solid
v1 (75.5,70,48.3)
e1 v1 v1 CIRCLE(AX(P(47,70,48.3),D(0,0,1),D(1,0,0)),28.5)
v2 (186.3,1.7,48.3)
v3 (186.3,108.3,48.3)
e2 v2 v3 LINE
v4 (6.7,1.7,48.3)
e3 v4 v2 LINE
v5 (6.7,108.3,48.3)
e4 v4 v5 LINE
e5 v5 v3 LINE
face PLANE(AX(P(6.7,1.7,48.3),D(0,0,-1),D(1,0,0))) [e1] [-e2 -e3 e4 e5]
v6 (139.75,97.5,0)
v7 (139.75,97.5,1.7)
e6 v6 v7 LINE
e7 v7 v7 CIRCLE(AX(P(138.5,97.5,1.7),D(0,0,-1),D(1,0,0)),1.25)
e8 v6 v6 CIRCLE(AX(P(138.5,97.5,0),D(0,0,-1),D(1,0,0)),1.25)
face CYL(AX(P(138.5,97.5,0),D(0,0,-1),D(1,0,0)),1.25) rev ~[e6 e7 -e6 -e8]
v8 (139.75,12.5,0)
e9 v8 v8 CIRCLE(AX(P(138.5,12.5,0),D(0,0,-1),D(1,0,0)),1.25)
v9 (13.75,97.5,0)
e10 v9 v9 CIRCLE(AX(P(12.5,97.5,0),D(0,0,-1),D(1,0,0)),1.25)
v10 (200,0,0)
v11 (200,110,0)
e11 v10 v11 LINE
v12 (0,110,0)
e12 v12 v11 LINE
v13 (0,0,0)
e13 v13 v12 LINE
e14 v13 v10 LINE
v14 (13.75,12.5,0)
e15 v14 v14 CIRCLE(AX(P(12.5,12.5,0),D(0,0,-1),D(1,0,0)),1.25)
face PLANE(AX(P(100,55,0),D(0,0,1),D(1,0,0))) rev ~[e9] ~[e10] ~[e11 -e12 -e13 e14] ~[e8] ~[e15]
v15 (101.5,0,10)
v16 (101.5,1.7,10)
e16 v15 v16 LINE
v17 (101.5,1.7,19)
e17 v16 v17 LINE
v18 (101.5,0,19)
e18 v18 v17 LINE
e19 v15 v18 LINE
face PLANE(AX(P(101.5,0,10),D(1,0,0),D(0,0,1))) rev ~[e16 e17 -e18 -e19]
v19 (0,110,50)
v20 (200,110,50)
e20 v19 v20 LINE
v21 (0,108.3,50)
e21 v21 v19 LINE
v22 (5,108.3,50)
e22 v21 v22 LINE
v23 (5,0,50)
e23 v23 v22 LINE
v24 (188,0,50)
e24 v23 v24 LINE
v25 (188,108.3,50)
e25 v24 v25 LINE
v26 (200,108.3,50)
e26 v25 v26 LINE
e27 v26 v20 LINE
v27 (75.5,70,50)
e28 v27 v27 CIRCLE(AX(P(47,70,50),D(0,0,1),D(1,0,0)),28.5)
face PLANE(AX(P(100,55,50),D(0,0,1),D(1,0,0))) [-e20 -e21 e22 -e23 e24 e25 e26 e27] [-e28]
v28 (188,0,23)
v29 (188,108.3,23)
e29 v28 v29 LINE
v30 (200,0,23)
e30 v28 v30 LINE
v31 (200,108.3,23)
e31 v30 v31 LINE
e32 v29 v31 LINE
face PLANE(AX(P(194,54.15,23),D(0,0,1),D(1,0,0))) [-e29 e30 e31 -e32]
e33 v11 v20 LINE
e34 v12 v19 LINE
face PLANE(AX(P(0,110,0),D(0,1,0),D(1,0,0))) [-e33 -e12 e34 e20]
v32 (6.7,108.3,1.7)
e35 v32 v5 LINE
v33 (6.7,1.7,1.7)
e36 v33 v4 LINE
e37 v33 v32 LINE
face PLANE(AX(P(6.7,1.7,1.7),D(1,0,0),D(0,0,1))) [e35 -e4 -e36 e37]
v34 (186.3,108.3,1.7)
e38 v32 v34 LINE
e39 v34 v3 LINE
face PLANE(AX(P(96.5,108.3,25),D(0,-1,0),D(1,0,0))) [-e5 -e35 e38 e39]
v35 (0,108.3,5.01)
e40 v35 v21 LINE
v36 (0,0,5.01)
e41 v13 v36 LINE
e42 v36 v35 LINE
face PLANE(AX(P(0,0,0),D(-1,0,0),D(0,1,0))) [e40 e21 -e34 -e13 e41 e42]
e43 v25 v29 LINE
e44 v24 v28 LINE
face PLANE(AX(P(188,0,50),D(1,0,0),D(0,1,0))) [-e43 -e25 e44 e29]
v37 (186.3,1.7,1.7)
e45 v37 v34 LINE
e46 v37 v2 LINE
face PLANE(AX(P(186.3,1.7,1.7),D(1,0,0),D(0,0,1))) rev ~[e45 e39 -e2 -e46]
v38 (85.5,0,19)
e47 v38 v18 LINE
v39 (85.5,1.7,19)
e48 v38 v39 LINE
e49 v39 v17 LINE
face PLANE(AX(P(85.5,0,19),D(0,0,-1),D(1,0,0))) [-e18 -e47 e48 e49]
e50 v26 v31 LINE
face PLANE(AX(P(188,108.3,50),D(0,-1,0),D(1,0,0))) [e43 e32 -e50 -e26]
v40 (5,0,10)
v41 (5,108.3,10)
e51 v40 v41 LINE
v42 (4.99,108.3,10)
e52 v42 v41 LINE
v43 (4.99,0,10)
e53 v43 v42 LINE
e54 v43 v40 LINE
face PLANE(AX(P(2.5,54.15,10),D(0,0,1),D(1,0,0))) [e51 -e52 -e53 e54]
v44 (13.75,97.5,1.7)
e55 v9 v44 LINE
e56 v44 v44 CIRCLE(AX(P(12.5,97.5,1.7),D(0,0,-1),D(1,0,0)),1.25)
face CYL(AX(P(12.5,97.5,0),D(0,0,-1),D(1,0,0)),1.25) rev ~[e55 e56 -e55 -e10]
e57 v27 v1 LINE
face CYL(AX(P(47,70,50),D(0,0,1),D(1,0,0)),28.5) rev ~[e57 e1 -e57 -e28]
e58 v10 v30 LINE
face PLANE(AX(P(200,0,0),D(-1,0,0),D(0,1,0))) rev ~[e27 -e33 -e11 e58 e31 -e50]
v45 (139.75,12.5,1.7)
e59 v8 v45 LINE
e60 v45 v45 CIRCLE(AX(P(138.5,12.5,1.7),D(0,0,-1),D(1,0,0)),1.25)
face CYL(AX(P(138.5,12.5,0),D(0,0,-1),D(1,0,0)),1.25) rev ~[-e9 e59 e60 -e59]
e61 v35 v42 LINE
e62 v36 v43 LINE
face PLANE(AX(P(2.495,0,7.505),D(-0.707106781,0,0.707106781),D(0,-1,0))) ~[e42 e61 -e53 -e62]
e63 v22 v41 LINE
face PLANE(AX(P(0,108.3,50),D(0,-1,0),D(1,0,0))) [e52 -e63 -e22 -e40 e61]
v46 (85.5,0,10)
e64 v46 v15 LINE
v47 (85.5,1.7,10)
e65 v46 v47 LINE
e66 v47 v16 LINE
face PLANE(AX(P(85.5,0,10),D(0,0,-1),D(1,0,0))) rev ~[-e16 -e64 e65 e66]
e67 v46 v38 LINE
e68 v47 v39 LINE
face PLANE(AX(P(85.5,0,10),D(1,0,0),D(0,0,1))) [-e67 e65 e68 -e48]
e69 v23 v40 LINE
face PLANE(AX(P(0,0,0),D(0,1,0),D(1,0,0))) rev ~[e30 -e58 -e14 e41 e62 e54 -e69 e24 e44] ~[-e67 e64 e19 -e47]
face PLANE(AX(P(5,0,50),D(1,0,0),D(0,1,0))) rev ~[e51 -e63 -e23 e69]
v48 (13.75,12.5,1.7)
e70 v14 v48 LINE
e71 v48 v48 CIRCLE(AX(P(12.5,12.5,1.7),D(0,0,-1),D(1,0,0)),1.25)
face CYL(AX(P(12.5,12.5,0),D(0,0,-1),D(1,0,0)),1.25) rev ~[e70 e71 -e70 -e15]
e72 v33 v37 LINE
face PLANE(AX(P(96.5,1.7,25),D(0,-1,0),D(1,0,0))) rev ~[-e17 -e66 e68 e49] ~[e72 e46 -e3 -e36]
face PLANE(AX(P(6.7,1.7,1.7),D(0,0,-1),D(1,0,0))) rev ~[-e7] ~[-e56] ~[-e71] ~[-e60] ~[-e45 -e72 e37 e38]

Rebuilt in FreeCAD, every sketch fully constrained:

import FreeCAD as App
import Part
import Sketcher
from FreeCAD import Vector


def edges_at(feature, points):
    """Names of the edges that pass closest to the given points."""
    edges = feature.Shape.Edges
    near = lambda p: min(range(len(edges)), key=lambda i: edges[i].distToShape(Part.Vertex(*p))[0])
    return sorted({f"Edge{near(p) + 1}" for p in points})


def add_polygon(sketch, points):
    """Adds a closed chain of lines whose ends are joined by coincident constraints."""
    first, n = sketch.GeometryCount, len(points)
    for a, b in zip(points, points[1:] + points[:1]):
        sketch.addGeometry(Part.LineSegment(App.Vector(*a, 0), App.Vector(*b, 0)), False)
    for i in range(n):
        sketch.addConstraint(Sketcher.Constraint("Coincident", first + i, 2, first + (i + 1) % n, 1))

doc = App.newDocument("Part")
body = doc.addObject("PartDesign::Body", "Body")

sketch1 = doc.addObject("Sketcher::SketchObject", "Sketch")
body.addObject(sketch1)
sketch1.AttachmentSupport = (doc.XY_Plane, [""])
sketch1.MapMode = "FlatFace"
add_polygon(sketch1, [(0, 110), (0, 0), (200, 0), (200, 110)])
sketch1.addConstraint(Sketcher.Constraint("Vertical", 0))
sketch1.addConstraint(Sketcher.Constraint("Horizontal", 1))
sketch1.addConstraint(Sketcher.Constraint("Vertical", 2))
sketch1.addConstraint(Sketcher.Constraint("Horizontal", 3))
sketch1.addConstraint(Sketcher.Constraint("Coincident", 0, 2, -1, 1))
sketch1.addConstraint(Sketcher.Constraint("DistanceX", 1, 1, 1, 2, 200.0))
sketch1.addConstraint(Sketcher.Constraint("DistanceY", 0, 2, 0, 1, 110.0))
pad1 = doc.addObject("PartDesign::Pad", "Pad")
body.addObject(pad1)
pad1.Profile = sketch1
pad1.Length = 50

sketch2 = doc.addObject("Sketcher::SketchObject", "Sketch001")
body.addObject(sketch2)
sketch2.AttachmentSupport = (doc.XZ_Plane, [""])
sketch2.MapMode = "FlatFace"
add_polygon(sketch2, [(86, 19), (86, 10), (102, 10), (102, 19)])
sketch2.addConstraint(Sketcher.Constraint("Vertical", 0))
sketch2.addConstraint(Sketcher.Constraint("Horizontal", 1))
sketch2.addConstraint(Sketcher.Constraint("Vertical", 2))
sketch2.addConstraint(Sketcher.Constraint("Horizontal", 3))
sketch2.addConstraint(Sketcher.Constraint("DistanceX", 1, 1, 1, 2, 16.0))
sketch2.addConstraint(Sketcher.Constraint("DistanceY", 0, 2, 0, 1, 9.0))
sketch2.addConstraint(Sketcher.Constraint("DistanceY", -1, 1, 0, 2, 10.0))
sketch2.addConstraint(Sketcher.Constraint("DistanceX", -1, 1, 0, 2, 85.5))
pocket1 = doc.addObject("PartDesign::Pocket", "Pocket")
body.addObject(pocket1)
pocket1.Profile = sketch2
pocket1.Length = 1.7

sketch3 = doc.addObject("Sketcher::SketchObject", "Sketch002")
body.addObject(sketch3)
sketch3.AttachmentSupport = (doc.XY_Plane, [""])
sketch3.MapMode = "FlatFace"
sketch3.AttachmentOffset = App.Placement(Vector(0, 0, 50), App.Rotation())
add_polygon(sketch3, [(188, 108), (188, 0), (200, 0), (200, 108)])
sketch3.addConstraint(Sketcher.Constraint("Vertical", 0))
sketch3.addConstraint(Sketcher.Constraint("Horizontal", 1))
sketch3.addConstraint(Sketcher.Constraint("Vertical", 2))
sketch3.addConstraint(Sketcher.Constraint("Horizontal", 3))
sketch3.addConstraint(Sketcher.Constraint("PointOnObject", 0, 2, -1))
sketch3.addConstraint(Sketcher.Constraint("DistanceX", 1, 1, 1, 2, 12.0))
sketch3.addConstraint(Sketcher.Constraint("DistanceY", 0, 2, 0, 1, 108.3))
sketch3.addConstraint(Sketcher.Constraint("DistanceX", -1, 1, 0, 2, 188.0))
pocket2 = doc.addObject("PartDesign::Pocket", "Pocket001")
body.addObject(pocket2)
pocket2.Profile = sketch3
pocket2.Length = 27

sketch4 = doc.addObject("Sketcher::SketchObject", "Sketch003")
body.addObject(sketch4)
sketch4.AttachmentSupport = (doc.XY_Plane, [""])
sketch4.MapMode = "FlatFace"
sketch4.addGeometry(Part.Circle(Vector(12.5, 12.5, 0), Vector(0, 0, 1), 1.2), False)
sketch4.addGeometry(Part.Circle(Vector(12.5, 97.5, 0), Vector(0, 0, 1), 1.2), False)
sketch4.addGeometry(Part.Circle(Vector(138.5, 97.5, 0), Vector(0, 0, 1), 1.2), False)
sketch4.addGeometry(Part.Circle(Vector(138.5, 12.5, 0), Vector(0, 0, 1), 1.2), False)
sketch4.addConstraint(Sketcher.Constraint("Equal", 0, 1))
sketch4.addConstraint(Sketcher.Constraint("Equal", 1, 2))
sketch4.addConstraint(Sketcher.Constraint("Equal", 2, 3))
sketch4.addConstraint(Sketcher.Constraint("Horizontal", 1, 3, 2, 3))
sketch4.addConstraint(Sketcher.Constraint("Horizontal", 0, 3, 3, 3))
sketch4.addConstraint(Sketcher.Constraint("Vertical", 0, 3, 1, 3))
sketch4.addConstraint(Sketcher.Constraint("Vertical", 2, 3, 3, 3))
sketch4.addConstraint(Sketcher.Constraint("Diameter", 0, 2.5))
sketch4.addConstraint(Sketcher.Constraint("DistanceY", 0, 3, 1, 3, 85.0))
sketch4.addConstraint(Sketcher.Constraint("DistanceX", 1, 3, 2, 3, 126.0))
sketch4.addConstraint(Sketcher.Constraint("DistanceX", -1, 1, 0, 3, 12.5))
sketch4.addConstraint(Sketcher.Constraint("DistanceY", -1, 1, 0, 3, 12.5))
pocket3 = doc.addObject("PartDesign::Pocket", "Pocket002")
body.addObject(pocket3)
pocket3.Profile = sketch4
pocket3.Length = 10
pocket3.Reversed = True

sketch5 = doc.addObject("Sketcher::SketchObject", "Sketch004")
body.addObject(sketch5)
sketch5.AttachmentSupport = (doc.XZ_Plane, [""])
sketch5.MapMode = "FlatFace"
sketch5.AttachmentOffset = App.Placement(Vector(0, 0, -1.7), App.Rotation())
add_polygon(sketch5, [(7, 48), (7, 2), (186, 2), (186, 48)])
sketch5.addConstraint(Sketcher.Constraint("Vertical", 0))
sketch5.addConstraint(Sketcher.Constraint("Horizontal", 1))
sketch5.addConstraint(Sketcher.Constraint("Vertical", 2))
sketch5.addConstraint(Sketcher.Constraint("Horizontal", 3))
sketch5.addConstraint(Sketcher.Constraint("DistanceX", 1, 1, 1, 2, 179.6))
sketch5.addConstraint(Sketcher.Constraint("DistanceY", 0, 2, 0, 1, 46.6))
sketch5.addConstraint(Sketcher.Constraint("DistanceX", -1, 1, 0, 2, 6.7))
sketch5.addConstraint(Sketcher.Constraint("DistanceY", -1, 1, 0, 2, 1.7))
pocket4 = doc.addObject("PartDesign::Pocket", "Pocket003")
body.addObject(pocket4)
pocket4.Profile = sketch5
pocket4.Length = 106.6

sketch6 = doc.addObject("Sketcher::SketchObject", "Sketch005")
body.addObject(sketch6)
sketch6.AttachmentSupport = (doc.XY_Plane, [""])
sketch6.MapMode = "FlatFace"
sketch6.AttachmentOffset = App.Placement(Vector(0, 0, 50), App.Rotation())
add_polygon(sketch6, [(0, 108), (0, 0), (5, 0), (5, 108)])
sketch6.addConstraint(Sketcher.Constraint("Vertical", 0))
sketch6.addConstraint(Sketcher.Constraint("Horizontal", 1))
sketch6.addConstraint(Sketcher.Constraint("Vertical", 2))
sketch6.addConstraint(Sketcher.Constraint("Horizontal", 3))
sketch6.addConstraint(Sketcher.Constraint("Coincident", 0, 2, -1, 1))
sketch6.addConstraint(Sketcher.Constraint("DistanceX", 1, 1, 1, 2, 5.0))
sketch6.addConstraint(Sketcher.Constraint("DistanceY", 0, 2, 0, 1, 108.3))
pocket5 = doc.addObject("PartDesign::Pocket", "Pocket004")
body.addObject(pocket5)
pocket5.Profile = sketch6
pocket5.Length = 40
doc.recompute()

chamfer = doc.addObject("PartDesign::Chamfer", "Chamfer")
body.addObject(chamfer)
chamfer.Base = (pocket5, edges_at(pocket5, [(0, 54.15, 10)]))
chamfer.Size = 4.99

sketch7 = doc.addObject("Sketcher::SketchObject", "Sketch006")
body.addObject(sketch7)
sketch7.AttachmentSupport = (doc.XY_Plane, [""])
sketch7.MapMode = "FlatFace"
sketch7.AttachmentOffset = App.Placement(Vector(0, 0, 50), App.Rotation())
sketch7.addGeometry(Part.Circle(Vector(47, 70, 0), Vector(0, 0, 1), 28), False)
sketch7.addConstraint(Sketcher.Constraint("Diameter", 0, 57.0))
sketch7.addConstraint(Sketcher.Constraint("DistanceX", -1, 1, 0, 3, 47.0))
sketch7.addConstraint(Sketcher.Constraint("DistanceY", -1, 1, 0, 3, 70.0))
pocket6 = doc.addObject("PartDesign::Pocket", "Pocket005")
body.addObject(pocket6)
pocket6.Profile = sketch7
pocket6.Length = 5

doc.recompute()
